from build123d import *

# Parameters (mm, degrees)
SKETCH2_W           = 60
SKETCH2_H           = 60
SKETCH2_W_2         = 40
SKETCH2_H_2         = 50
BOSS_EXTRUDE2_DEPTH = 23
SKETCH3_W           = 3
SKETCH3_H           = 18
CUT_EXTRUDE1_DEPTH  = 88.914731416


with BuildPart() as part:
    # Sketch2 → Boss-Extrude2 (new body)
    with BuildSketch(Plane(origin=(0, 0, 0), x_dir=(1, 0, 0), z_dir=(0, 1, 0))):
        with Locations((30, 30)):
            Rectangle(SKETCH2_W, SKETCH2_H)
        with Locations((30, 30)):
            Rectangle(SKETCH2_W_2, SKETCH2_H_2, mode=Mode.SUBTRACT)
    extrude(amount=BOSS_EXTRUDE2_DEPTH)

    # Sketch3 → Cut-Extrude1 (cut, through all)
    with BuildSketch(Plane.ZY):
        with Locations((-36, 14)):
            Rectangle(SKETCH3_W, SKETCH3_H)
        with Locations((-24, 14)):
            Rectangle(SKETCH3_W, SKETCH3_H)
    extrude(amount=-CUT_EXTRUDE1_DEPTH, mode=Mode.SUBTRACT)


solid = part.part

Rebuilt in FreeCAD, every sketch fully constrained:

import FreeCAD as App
import Part
import Sketcher

V = App.Vector
Q = App.Units.Quantity

doc = App.newDocument("Part")
body = doc.addObject("PartDesign::Body", "Body")

# Sketch on XZ plane
sketch1 = body.newObject("Sketcher::SketchObject", "Sketch")
sketch1.AttachmentSupport = (doc.getObject("XZ_Plane"), [""])
sketch1.MapMode = "FlatFace"
sketch1.addGeometry(Part.LineSegment(V(0, -60, 0), V(0, 0, 0)), False)
sketch1.addGeometry(Part.LineSegment(V(0, 0, 0), V(60, 0, 0)), False)
sketch1.addGeometry(Part.LineSegment(V(60, 0, 0), V(60, -60, 0)), False)
sketch1.addGeometry(Part.LineSegment(V(60, -60, 0), V(0, -60, 0)), False)
sketch1.addGeometry(Part.LineSegment(V(50, -5, 0), V(10, -5, 0)), False)
sketch1.addGeometry(Part.LineSegment(V(10, -5, 0), V(10, -55, 0)), False)
sketch1.addGeometry(Part.LineSegment(V(10, -55, 0), V(50, -55, 0)), False)
sketch1.addGeometry(Part.LineSegment(V(50, -55, 0), V(50, -5, 0)), False)
sketch1.addConstraint(Sketcher.Constraint("Coincident", 0, 2, 1, 1))
sketch1.addConstraint(Sketcher.Constraint("Coincident", 1, 2, 2, 1))
sketch1.addConstraint(Sketcher.Constraint("Coincident", 2, 2, 3, 1))
sketch1.addConstraint(Sketcher.Constraint("Coincident", 3, 2, 0, 1))
sketch1.addConstraint(Sketcher.Constraint("Coincident", 4, 2, 5, 1))
sketch1.addConstraint(Sketcher.Constraint("Coincident", 5, 2, 6, 1))
sketch1.addConstraint(Sketcher.Constraint("Coincident", 6, 2, 7, 1))
sketch1.addConstraint(Sketcher.Constraint("Coincident", 7, 2, 4, 1))
sketch1.addConstraint(Sketcher.Constraint("Vertical", 0))
sketch1.addConstraint(Sketcher.Constraint("Horizontal", 1))
sketch1.addConstraint(Sketcher.Constraint("Vertical", 2))
sketch1.addConstraint(Sketcher.Constraint("Horizontal", 3))
sketch1.addConstraint(Sketcher.Constraint("Horizontal", 4))
sketch1.addConstraint(Sketcher.Constraint("Vertical", 5))
sketch1.addConstraint(Sketcher.Constraint("Horizontal", 6))
sketch1.addConstraint(Sketcher.Constraint("Vertical", 7))
sketch1.addConstraint(Sketcher.Constraint("Coincident", 0, 2, -1, 1))
sketch1.addConstraint(Sketcher.Constraint("Equal", 3, 0))
sketch1.addConstraint(Sketcher.Constraint("DistanceX", 1, 1, 1, 2, Q("60 mm")))
sketch1.addConstraint(Sketcher.Constraint("DistanceX", 4, 2, 4, 1, Q("40 mm")))
sketch1.addConstraint(Sketcher.Constraint("DistanceY", 5, 2, 5, 1, Q("50 mm")))
sketch1.addConstraint(Sketcher.Constraint("DistanceX", -1, 1, 4, 2, Q("10 mm")))
sketch1.addConstraint(Sketcher.Constraint("DistanceY", 4, 2, -1, 1, Q("5 mm")))
pad1 = body.newObject("PartDesign::Pad", "Pad")
pad1.Profile = sketch1
pad1.Length = 23
pad1.Reversed = True

# Sketch on YZ plane
sketch2 = body.newObject("Sketcher::SketchObject", "Sketch001")
sketch2.AttachmentSupport = (doc.getObject("YZ_Plane"), [""])
sketch2.MapMode = "FlatFace"
sketch2.addGeometry(Part.LineSegment(V(23, -37.5, 0), V(5, -37.5, 0)), False)
sketch2.addGeometry(Part.LineSegment(V(5, -37.5, 0), V(5, -34.5, 0)), False)
sketch2.addGeometry(Part.LineSegment(V(5, -34.5, 0), V(23, -34.5, 0)), False)
sketch2.addGeometry(Part.LineSegment(V(23, -34.5, 0), V(23, -37.5, 0)), False)
sketch2.addGeometry(Part.LineSegment(V(23, -25.5, 0), V(5, -25.5, 0)), False)
sketch2.addGeometry(Part.LineSegment(V(5, -25.5, 0), V(5, -22.5, 0)), False)
sketch2.addGeometry(Part.LineSegment(V(5, -22.5, 0), V(23, -22.5, 0)), False)
sketch2.addGeometry(Part.LineSegment(V(23, -22.5, 0), V(23, -25.5, 0)), False)
sketch2.addConstraint(Sketcher.Constraint("Coincident", 0, 2, 1, 1))
sketch2.addConstraint(Sketcher.Constraint("Coincident", 1, 2, 2, 1))
sketch2.addConstraint(Sketcher.Constraint("Coincident", 2, 2, 3, 1))
sketch2.addConstraint(Sketcher.Constraint("Coincident", 3, 2, 0, 1))
sketch2.addConstraint(Sketcher.Constraint("Coincident", 4, 2, 5, 1))
sketch2.addConstraint(Sketcher.Constraint("Coincident", 5, 2, 6, 1))
sketch2.addConstraint(Sketcher.Constraint("Coincident", 6, 2, 7, 1))
sketch2.addConstraint(Sketcher.Constraint("Coincident", 7, 2, 4, 1))
sketch2.addConstraint(Sketcher.Constraint("Horizontal", 0))
sketch2.addConstraint(Sketcher.Constraint("Vertical", 1))
sketch2.addConstraint(Sketcher.Constraint("Horizontal", 2))
sketch2.addConstraint(Sketcher.Constraint("Vertical", 3))
sketch2.addConstraint(Sketcher.Constraint("Horizontal", 4))
sketch2.addConstraint(Sketcher.Constraint("Vertical", 5))
sketch2.addConstraint(Sketcher.Constraint("Horizontal", 6))
sketch2.addConstraint(Sketcher.Constraint("Vertical", 7))
sketch2.addConstraint(Sketcher.Constraint("Vertical", 1, 2, 4, 2))
sketch2.addConstraint(Sketcher.Constraint("Vertical", 3, 2, 6, 2))
sketch2.addConstraint(Sketcher.Constraint("Equal", 3, 5))
sketch2.addConstraint(Sketcher.Constraint("DistanceX", 0, 2, 0, 1, Q("18 mm")))
sketch2.addConstraint(Sketcher.Constraint("DistanceY", 1, 1, 1, 2, Q("3 mm")))
sketch2.addConstraint(Sketcher.Constraint("DistanceX", -1, 1, 0, 2, Q("5 mm")))
sketch2.addConstraint(Sketcher.Constraint("DistanceY", 1, 2, 4, 2, Q("9 mm")))
sketch2.addConstraint(Sketcher.Constraint("DistanceY", 0, 2, -1, 1, Q("37.5 mm")))
pocket1 = body.newObject("PartDesign::Pocket", "Pocket")
pocket1.Profile = sketch2
pocket1.Type = "ThroughAll"
pocket1.Reversed = True

doc.recompute()
